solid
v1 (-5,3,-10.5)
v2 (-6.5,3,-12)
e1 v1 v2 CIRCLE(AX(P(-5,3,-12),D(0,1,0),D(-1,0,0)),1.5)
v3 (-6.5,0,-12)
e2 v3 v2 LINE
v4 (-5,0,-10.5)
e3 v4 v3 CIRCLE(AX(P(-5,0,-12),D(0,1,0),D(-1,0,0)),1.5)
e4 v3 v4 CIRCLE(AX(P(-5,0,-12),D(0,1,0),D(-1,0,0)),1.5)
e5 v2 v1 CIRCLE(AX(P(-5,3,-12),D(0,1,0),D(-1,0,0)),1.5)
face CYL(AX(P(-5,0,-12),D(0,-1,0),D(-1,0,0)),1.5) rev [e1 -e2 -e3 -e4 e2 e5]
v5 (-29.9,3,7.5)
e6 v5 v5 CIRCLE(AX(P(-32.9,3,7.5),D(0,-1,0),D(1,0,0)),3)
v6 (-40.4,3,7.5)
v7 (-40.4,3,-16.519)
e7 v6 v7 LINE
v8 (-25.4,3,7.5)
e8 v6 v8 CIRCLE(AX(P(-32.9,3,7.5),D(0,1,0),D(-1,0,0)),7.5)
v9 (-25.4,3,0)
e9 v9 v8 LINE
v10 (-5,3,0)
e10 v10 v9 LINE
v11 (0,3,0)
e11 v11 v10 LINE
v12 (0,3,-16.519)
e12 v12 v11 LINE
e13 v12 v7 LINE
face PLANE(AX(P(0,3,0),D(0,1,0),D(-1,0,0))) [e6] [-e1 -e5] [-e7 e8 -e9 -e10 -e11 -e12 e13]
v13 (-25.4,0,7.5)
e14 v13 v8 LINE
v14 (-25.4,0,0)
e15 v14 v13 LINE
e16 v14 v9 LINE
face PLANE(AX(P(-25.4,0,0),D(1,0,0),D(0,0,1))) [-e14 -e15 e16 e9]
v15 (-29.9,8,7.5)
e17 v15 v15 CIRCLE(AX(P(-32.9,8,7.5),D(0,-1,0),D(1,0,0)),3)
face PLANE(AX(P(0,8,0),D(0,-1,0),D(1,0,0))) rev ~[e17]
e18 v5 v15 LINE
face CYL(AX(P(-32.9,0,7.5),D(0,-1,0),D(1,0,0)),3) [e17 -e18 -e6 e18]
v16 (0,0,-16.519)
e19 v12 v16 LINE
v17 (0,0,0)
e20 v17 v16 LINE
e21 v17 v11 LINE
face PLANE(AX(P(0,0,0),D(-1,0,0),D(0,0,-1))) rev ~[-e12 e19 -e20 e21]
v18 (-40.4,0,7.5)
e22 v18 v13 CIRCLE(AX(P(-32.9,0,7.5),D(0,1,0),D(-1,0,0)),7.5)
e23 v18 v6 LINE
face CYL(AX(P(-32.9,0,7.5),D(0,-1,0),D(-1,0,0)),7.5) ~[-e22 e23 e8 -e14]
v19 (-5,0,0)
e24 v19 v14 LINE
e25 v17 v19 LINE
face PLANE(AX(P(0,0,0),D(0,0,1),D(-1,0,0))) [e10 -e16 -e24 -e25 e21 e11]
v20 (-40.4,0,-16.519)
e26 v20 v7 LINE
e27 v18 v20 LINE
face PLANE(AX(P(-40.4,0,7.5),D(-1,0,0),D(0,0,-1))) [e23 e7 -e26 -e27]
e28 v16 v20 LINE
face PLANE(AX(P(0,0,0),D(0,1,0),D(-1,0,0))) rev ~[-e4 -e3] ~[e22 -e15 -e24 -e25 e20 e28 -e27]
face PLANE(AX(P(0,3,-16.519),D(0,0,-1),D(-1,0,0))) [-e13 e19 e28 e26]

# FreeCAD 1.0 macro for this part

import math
import FreeCAD as App
import Part
import Sketcher
from FreeCAD import Vector

doc = App.newDocument("Part")
body = doc.addObject("PartDesign::Body", "Body")

sketch1 = body.newObject("Sketcher::SketchObject", "Sketch")
sketch1.AttachmentSupport = (doc.getObject("XZ_Plane"), [""])
sketch1.MapMode = "FlatFace"
sketch1.addGeometry([
    Part.LineSegment(Vector(-5, 0, 0), Vector(0, 0, 0)),
    Part.LineSegment(Vector(0, 0, 0), Vector(0, -60, 0)),
    Part.LineSegment(Vector(0, -60, 0), Vector(-5, -60, 0)),
    Part.LineSegment(Vector(-5, -60, 0), Vector(-12.5, -60, 0)),
    Part.LineSegment(Vector(-12.5, -60, 0), Vector(-40.4, -16.5, 0)),
    Part.LineSegment(Vector(-40.4, -16.5, 0), Vector(-40.4, 7.5, 0)),
    Part.ArcOfCircle(Part.Circle(Vector(-32.9, 7.5, 0), Vector(0, 0, 1), 7.5), math.radians(0), math.radians(180)),
    Part.LineSegment(Vector(-25.4, 7.5, 0), Vector(-25.4, 0, 0)),
    Part.LineSegment(Vector(-25.4, 0, 0), Vector(-5, 0, 0)),
    Part.Circle(Vector(-5, -48, 0), Vector(0, 0, 1), 1.5),
    Part.Circle(Vector(-5, -12, 0), Vector(0, 0, 1), 1.5),
    Part.ArcOfCircle(Part.Circle(Vector(-32.9, 7.5, 0), Vector(0, 0, 1), 3), math.radians(0), math.radians(180)),
    Part.LineSegment(Vector(-35.9, 7.5, 0), Vector(-29.9, 7.5, 0)),
], False)
sketch1.addConstraint([
    Sketcher.Constraint("Coincident", 0, 2, 1, 1),
    Sketcher.Constraint("Coincident", 1, 2, 2, 1),
    Sketcher.Constraint("Coincident", 2, 2, 3, 1),
    Sketcher.Constraint("Coincident", 3, 2, 4, 1),
    Sketcher.Constraint("Coincident", 4, 2, 5, 1),
    Sketcher.Constraint("Tangent", 5, 2, 6, 2),
    Sketcher.Constraint("Tangent", 6, 1, 7, 1),
    Sketcher.Constraint("Coincident", 7, 2, 8, 1),
    Sketcher.Constraint("Coincident", 8, 2, 0, 1),
    Sketcher.Constraint("Coincident", 11, 1, 12, 2),
    Sketcher.Constraint("Coincident", 12, 1, 11, 2),
    Sketcher.Constraint("Horizontal", 0),
    Sketcher.Constraint("Vertical", 1),
    Sketcher.Constraint("Horizontal", 2),
    Sketcher.Constraint("Horizontal", 3),
    Sketcher.Constraint("Vertical", 5),
    Sketcher.Constraint("Vertical", 7),
    Sketcher.Constraint("Horizontal", 8),
    Sketcher.Constraint("Horizontal", 12),
    Sketcher.Constraint("Coincident", 0, 2, -1, 1),
    Sketcher.Constraint("Coincident", 11, 3, 6, 3),
    Sketcher.Constraint("Equal", 9, 10),
    Sketcher.Constraint("Horizontal", 6, 1, 11, 1),
    Sketcher.Constraint("Vertical", 9, 3, 10, 3),
    Sketcher.Constraint("Vertical", 10, 3, 2, 2),
    Sketcher.Constraint("Vertical", 2, 2, 8, 2),
    Sketcher.Constraint("Diameter", 9, 3.0),
    Sketcher.Constraint("Radius", 11, 3.0),
    Sketcher.Constraint("Radius", 6, 7.5),
    Sketcher.Constraint("DistanceX", 0, 1, 0, 2, 5.0),
    Sketcher.Constraint("DistanceY", 1, 2, 1, 1, 60.0),
    Sketcher.Constraint("DistanceY", 7, 2, 7, 1, 7.5),
    Sketcher.Constraint("DistanceY", 10, 3, -1, 1, 12.0),
    Sketcher.Constraint("DistanceY", 1, 2, 9, 3, 12.0),
    Sketcher.Constraint("DistanceX", 6, 1, -1, 1, 25.4),
    Sketcher.Constraint("DistanceY", 5, 1, 5, 2, 24.019),
    Sketcher.Constraint("DistanceX", 3, 2, -1, 1, 12.519),
])
pad1 = body.newObject("PartDesign::Pad", "Pad")
pad1.Profile = sketch1
pad1.Length = 3
pad1.Reversed = True

sketch2 = body.newObject("Sketcher::SketchObject", "Sketch001")
sketch2.AttachmentSupport = (doc.getObject("XZ_Plane"), [""])
sketch2.MapMode = "FlatFace"
sketch2.addGeometry(Part.Circle(Vector(-32.9, 7.5, 0), Vector(0, 0, 1), 3), False)
sketch2.addConstraint([
    Sketcher.Constraint("Diameter", 0, 6.0),
    Sketcher.Constraint("DistanceX", 0, 3, -1, 1, 32.9),
    Sketcher.Constraint("DistanceY", -1, 1, 0, 3, 7.5),
])
pad2 = body.newObject("PartDesign::Pad", "Pad001")
pad2.Profile = sketch2
pad2.Length = 8
pad2.Reversed = True

sketch3 = body.newObject("Sketcher::SketchObject", "Sketch002")
sketch3.AttachmentSupport = (doc.getObject("XZ_Plane"), [""])
sketch3.MapMode = "FlatFace"
sketch3.AttachmentOffset = App.Placement(Vector(0, 0, -3), App.Rotation())
sketch3.addGeometry([
    Part.LineSegment(Vector(0, -17, 0), Vector(0, -60, 0)),
    Part.LineSegment(Vector(0, -60, 0), Vector(-40, -60, 0)),
    Part.LineSegment(Vector(-40, -60, 0), Vector(-40, -17, 0)),
    Part.LineSegment(Vector(-40, -17, 0), Vector(0, -17, 0)),
], False)
sketch3.addConstraint([
    Sketcher.Constraint("Coincident", 0, 2, 1, 1),
    Sketcher.Constraint("Coincident", 1, 2, 2, 1),
    Sketcher.Constraint("Coincident", 2, 2, 3, 1),
    Sketcher.Constraint("Coincident", 3, 2, 0, 1),
    Sketcher.Constraint("Vertical", 0),
    Sketcher.Constraint("Horizontal", 1),
    Sketcher.Constraint("Vertical", 2),
    Sketcher.Constraint("Horizontal", 3),
    Sketcher.Constraint("PointOnObject", 0, 2, -2),
    Sketcher.Constraint("DistanceX", 1, 2, 1, 1, 40.4),
    Sketcher.Constraint("DistanceY", 0, 2, -1, 1, 60.0),
    Sketcher.Constraint("DistanceY", 0, 2, 0, 1, 43.481),
])
pocket1 = body.newObject("PartDesign::Pocket", "Pocket")
pocket1.Profile = sketch3
pocket1.Length = 25.4
pocket1.Reversed = True

doc.recompute()
